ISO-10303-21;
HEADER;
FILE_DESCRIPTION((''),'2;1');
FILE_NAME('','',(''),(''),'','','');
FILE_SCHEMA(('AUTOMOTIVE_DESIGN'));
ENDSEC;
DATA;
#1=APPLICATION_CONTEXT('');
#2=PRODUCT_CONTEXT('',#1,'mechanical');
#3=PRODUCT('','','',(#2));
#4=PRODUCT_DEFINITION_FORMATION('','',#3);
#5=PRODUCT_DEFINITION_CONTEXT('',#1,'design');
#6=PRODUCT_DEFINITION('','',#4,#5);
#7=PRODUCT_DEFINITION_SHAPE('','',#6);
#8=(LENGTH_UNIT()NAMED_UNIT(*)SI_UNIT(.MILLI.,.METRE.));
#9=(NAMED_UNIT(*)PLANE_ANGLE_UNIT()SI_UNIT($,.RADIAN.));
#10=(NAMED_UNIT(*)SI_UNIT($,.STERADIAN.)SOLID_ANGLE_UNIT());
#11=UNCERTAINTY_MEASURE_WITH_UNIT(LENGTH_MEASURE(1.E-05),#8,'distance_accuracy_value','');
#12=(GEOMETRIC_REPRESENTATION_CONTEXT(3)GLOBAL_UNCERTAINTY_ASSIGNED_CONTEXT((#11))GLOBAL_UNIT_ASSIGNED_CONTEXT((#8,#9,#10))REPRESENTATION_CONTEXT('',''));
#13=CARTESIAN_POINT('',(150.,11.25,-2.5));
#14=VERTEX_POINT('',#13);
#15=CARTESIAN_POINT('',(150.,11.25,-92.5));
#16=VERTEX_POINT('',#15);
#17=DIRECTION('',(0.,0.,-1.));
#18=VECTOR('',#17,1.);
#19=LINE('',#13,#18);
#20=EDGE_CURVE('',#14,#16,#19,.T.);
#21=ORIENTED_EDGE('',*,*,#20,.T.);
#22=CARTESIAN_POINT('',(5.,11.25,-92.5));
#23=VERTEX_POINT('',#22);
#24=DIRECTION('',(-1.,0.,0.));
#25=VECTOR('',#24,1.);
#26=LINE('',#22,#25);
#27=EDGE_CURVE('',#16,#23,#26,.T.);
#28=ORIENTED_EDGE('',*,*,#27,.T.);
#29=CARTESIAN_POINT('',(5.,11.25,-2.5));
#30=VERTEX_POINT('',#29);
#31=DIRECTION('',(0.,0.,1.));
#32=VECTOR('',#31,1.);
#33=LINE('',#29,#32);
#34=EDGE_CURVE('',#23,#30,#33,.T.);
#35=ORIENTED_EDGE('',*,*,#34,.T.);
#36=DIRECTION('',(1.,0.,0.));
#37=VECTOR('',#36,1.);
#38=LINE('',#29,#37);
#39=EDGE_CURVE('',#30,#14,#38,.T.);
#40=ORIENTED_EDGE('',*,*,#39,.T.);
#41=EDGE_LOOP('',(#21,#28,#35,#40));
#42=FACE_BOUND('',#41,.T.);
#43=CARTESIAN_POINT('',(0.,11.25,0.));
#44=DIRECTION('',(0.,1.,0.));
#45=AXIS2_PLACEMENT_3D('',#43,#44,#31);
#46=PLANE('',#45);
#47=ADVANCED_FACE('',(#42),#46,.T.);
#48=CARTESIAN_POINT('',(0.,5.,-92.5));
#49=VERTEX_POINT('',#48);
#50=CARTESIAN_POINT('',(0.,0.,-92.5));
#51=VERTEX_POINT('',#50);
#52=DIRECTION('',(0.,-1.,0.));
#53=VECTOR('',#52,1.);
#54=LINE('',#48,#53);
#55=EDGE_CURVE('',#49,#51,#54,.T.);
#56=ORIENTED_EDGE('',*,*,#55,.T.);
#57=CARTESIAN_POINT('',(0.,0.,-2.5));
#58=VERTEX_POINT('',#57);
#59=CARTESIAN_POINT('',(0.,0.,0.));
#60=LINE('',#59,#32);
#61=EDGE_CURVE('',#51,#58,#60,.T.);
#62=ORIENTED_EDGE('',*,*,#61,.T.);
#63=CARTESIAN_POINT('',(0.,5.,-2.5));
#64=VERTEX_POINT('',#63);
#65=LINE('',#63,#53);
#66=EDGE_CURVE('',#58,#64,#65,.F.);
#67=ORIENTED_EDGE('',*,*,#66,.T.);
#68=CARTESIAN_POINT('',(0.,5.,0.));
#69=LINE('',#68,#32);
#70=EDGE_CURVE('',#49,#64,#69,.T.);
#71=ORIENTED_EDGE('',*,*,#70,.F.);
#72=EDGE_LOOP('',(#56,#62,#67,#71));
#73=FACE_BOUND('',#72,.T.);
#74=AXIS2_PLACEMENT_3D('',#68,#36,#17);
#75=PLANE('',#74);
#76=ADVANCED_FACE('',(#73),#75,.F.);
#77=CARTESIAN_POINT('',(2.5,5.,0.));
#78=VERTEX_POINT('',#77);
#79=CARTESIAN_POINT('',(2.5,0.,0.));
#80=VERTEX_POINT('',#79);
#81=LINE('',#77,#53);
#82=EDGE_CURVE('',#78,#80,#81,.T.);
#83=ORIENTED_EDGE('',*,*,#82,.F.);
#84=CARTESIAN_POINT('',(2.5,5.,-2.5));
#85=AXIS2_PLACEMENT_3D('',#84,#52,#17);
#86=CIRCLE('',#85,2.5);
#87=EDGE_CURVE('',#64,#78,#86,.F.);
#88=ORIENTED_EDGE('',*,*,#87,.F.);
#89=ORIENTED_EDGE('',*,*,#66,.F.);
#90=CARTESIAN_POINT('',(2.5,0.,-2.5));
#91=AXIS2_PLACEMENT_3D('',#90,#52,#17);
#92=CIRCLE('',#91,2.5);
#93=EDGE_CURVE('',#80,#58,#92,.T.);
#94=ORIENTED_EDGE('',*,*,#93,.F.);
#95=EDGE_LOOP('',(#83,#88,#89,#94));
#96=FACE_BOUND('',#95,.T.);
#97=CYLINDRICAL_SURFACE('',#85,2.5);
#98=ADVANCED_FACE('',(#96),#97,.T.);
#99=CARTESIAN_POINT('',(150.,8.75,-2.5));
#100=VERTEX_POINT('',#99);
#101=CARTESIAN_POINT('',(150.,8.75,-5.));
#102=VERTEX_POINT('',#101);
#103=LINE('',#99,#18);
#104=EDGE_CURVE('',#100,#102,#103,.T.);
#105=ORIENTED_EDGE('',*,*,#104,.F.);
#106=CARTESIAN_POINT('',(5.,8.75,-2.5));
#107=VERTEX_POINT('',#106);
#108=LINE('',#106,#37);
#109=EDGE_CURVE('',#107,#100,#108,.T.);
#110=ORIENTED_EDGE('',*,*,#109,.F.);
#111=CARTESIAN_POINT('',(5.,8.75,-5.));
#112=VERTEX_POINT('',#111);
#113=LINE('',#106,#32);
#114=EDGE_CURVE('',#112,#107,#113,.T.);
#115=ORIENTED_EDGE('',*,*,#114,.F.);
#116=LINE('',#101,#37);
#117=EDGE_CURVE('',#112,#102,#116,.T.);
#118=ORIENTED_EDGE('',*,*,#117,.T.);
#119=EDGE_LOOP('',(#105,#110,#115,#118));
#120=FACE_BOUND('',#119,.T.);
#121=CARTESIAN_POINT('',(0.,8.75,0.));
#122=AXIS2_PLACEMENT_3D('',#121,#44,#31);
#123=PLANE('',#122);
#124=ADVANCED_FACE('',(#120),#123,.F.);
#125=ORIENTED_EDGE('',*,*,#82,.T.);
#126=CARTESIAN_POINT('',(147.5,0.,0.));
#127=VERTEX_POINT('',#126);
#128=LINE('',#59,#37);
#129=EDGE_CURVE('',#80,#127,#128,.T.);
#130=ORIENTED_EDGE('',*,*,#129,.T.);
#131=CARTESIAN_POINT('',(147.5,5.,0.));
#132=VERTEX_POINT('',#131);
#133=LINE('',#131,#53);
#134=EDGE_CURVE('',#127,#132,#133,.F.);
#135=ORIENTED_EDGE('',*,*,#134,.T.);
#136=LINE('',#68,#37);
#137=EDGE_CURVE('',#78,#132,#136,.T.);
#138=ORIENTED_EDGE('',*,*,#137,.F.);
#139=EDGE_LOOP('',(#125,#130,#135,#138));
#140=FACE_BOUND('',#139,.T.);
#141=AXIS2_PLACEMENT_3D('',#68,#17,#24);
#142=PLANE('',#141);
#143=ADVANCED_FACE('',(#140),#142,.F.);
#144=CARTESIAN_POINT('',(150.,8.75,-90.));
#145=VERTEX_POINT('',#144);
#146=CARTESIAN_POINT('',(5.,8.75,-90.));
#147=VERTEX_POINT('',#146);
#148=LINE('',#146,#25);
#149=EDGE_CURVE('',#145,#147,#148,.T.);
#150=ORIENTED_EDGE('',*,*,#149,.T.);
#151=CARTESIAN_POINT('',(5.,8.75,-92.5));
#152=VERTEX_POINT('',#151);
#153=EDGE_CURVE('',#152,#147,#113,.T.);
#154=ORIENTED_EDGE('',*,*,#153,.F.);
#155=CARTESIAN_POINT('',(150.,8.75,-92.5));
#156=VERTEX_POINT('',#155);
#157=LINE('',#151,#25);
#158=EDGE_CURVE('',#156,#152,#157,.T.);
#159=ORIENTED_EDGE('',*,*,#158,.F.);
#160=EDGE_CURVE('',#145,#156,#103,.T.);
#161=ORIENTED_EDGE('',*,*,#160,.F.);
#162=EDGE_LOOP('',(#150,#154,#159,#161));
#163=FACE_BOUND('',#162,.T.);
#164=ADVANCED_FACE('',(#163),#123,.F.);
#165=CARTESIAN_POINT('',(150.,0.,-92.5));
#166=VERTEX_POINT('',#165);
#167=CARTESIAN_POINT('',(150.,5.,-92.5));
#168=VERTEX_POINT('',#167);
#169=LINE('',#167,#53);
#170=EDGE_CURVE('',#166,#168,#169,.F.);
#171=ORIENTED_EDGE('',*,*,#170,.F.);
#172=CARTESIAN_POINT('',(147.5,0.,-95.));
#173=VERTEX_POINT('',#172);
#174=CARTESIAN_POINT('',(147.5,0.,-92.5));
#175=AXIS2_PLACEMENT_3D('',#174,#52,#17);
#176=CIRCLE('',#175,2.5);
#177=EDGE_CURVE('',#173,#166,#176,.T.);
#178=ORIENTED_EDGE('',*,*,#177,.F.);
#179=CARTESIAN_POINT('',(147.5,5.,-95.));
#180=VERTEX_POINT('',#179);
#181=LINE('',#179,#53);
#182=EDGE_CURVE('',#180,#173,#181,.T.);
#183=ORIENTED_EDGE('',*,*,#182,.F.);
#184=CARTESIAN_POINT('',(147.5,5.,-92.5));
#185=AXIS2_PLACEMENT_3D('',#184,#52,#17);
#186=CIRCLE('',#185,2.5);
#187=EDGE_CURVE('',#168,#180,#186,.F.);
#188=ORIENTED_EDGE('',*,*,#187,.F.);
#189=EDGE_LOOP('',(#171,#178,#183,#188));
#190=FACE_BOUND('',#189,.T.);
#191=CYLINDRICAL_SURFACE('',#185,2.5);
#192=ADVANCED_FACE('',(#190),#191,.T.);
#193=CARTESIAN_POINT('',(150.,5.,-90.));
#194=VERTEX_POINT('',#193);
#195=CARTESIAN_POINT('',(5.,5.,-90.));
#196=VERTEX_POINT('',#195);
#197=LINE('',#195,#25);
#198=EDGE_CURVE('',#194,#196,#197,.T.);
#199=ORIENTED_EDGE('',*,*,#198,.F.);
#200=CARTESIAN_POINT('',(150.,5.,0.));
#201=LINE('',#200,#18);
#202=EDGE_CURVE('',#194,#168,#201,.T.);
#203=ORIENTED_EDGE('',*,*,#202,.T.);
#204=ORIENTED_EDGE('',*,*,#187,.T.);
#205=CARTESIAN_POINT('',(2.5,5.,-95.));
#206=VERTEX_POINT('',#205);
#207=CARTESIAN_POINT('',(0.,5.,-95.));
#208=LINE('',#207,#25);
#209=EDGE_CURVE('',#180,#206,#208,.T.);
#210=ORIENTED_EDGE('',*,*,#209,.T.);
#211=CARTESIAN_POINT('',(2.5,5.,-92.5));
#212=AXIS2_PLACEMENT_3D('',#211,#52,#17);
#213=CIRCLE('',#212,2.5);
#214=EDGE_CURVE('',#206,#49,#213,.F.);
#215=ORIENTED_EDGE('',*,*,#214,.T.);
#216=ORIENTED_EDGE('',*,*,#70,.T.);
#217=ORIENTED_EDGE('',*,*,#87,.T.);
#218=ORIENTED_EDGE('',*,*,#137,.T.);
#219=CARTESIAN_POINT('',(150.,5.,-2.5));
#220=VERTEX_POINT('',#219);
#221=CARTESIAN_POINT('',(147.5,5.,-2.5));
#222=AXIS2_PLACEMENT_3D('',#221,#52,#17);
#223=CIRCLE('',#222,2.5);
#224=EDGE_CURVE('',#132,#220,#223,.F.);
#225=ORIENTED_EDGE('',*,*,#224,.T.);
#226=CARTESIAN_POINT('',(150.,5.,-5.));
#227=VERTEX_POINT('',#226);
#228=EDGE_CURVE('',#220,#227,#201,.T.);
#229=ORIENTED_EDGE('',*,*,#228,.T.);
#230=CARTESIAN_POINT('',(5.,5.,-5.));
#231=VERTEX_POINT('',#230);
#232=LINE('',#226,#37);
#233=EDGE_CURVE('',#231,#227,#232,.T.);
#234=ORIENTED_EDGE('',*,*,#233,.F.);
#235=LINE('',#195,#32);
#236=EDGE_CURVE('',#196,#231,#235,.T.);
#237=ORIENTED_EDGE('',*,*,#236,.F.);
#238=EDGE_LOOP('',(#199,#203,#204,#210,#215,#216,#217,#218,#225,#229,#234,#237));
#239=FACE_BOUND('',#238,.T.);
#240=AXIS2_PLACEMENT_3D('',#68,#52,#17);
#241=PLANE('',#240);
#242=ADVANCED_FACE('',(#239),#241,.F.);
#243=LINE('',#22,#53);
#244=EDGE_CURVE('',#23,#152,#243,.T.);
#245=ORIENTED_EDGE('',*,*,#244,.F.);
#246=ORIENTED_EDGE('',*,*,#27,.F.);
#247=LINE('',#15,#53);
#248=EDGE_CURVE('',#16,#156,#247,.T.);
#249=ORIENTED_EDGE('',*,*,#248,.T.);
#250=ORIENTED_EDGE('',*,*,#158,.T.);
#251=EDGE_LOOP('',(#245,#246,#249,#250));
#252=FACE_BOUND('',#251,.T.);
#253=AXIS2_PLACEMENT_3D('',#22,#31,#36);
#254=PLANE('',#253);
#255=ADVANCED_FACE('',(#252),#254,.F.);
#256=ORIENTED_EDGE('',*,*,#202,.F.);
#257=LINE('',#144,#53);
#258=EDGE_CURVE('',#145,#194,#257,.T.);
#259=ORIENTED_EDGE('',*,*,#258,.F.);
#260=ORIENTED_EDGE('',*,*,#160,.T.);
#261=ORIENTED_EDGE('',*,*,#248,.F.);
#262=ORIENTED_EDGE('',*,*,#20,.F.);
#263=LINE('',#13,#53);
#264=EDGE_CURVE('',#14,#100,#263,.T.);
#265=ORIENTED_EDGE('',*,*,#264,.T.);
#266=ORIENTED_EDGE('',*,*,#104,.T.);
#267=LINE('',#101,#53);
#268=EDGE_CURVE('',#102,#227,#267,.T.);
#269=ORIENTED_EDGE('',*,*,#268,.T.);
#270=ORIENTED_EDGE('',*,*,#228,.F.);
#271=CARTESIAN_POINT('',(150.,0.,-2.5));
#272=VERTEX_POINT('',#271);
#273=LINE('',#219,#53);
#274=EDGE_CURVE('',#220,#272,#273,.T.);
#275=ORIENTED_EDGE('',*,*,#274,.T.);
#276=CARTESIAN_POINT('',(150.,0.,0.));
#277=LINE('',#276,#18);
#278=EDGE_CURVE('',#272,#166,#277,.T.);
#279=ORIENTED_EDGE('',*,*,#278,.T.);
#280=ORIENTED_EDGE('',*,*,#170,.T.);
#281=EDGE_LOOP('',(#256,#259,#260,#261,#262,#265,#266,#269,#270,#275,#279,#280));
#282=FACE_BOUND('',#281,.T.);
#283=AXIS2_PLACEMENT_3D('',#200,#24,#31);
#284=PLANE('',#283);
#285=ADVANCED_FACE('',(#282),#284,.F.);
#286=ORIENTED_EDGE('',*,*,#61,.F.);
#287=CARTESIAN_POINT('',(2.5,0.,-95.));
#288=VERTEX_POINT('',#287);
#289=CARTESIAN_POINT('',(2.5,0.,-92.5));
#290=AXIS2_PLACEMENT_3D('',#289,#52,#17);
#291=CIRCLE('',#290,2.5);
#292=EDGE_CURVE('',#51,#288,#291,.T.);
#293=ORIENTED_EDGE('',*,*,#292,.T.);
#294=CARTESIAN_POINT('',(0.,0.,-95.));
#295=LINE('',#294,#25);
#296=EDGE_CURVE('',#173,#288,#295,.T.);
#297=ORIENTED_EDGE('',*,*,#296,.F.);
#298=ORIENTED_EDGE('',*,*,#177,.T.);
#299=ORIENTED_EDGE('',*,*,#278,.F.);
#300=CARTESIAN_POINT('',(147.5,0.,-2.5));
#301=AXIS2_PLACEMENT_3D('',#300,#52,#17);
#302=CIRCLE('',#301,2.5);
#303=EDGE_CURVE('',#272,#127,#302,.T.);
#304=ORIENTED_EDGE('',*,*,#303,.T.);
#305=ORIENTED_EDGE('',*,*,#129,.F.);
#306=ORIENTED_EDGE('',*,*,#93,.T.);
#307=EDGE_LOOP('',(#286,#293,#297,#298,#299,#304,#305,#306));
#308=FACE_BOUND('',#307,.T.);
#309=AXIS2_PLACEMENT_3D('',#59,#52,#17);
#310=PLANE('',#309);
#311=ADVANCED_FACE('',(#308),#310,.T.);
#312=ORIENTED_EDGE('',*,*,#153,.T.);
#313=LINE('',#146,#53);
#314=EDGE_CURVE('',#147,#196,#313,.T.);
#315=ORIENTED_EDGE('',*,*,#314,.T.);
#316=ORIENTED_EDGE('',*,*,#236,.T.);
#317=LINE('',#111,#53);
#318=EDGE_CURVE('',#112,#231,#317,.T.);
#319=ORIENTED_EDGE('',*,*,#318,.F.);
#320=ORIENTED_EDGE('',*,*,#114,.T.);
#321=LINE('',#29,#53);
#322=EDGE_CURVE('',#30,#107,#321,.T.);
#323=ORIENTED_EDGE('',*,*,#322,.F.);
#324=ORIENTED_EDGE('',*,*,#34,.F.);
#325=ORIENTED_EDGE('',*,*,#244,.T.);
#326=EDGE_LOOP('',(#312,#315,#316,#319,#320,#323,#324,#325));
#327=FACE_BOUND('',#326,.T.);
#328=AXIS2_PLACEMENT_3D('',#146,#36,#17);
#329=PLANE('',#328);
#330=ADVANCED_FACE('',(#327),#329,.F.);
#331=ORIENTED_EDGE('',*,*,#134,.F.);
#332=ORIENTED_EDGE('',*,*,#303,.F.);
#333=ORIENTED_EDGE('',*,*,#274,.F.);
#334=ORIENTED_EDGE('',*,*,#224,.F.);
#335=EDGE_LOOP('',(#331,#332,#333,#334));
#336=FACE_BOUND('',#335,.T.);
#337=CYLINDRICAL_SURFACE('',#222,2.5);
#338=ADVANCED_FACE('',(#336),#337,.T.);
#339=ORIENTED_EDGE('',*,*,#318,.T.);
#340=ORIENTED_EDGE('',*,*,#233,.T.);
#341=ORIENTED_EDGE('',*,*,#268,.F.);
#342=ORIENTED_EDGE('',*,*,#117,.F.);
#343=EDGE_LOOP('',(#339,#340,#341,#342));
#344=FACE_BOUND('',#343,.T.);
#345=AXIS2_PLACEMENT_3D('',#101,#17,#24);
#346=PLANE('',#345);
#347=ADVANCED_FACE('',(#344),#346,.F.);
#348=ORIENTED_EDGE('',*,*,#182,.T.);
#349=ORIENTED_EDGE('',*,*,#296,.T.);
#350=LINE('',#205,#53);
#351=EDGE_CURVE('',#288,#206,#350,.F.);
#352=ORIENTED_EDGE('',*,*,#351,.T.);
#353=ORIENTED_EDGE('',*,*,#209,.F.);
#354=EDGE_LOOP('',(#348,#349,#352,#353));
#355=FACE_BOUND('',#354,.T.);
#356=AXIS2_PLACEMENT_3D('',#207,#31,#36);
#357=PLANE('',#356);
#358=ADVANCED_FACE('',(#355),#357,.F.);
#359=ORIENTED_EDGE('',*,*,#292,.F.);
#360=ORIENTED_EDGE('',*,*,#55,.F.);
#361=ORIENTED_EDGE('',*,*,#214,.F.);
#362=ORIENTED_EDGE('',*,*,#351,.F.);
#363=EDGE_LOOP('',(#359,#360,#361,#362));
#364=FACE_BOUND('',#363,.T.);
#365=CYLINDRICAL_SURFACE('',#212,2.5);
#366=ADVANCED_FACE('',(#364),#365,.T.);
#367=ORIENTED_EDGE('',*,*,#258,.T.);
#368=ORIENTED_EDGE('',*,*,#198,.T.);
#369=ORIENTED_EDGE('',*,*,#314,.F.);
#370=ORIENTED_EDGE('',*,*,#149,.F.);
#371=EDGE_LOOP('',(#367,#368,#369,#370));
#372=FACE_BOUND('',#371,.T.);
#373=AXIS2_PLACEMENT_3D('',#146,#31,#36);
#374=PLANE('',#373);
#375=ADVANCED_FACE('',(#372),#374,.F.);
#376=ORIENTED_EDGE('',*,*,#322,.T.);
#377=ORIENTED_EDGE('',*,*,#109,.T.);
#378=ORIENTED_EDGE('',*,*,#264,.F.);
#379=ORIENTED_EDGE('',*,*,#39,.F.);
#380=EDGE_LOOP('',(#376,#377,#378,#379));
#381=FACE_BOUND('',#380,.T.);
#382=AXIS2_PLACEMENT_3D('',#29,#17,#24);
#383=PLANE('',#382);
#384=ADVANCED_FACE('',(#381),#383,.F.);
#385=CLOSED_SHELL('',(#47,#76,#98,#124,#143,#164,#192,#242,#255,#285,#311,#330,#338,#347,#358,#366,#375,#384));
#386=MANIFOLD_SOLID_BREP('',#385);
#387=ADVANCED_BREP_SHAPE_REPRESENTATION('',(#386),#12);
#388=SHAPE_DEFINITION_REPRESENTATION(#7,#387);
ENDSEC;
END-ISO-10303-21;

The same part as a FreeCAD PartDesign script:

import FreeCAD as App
import Part
import Sketcher
from FreeCAD import Vector
Q = App.Units.Quantity


def edges_at(feature, points):
    """Names of the edges that pass closest to the given points."""
    edges = feature.Shape.Edges
    near = lambda p: min(range(len(edges)), key=lambda i: edges[i].distToShape(Part.Vertex(*p))[0])
    return sorted({f"Edge{near(p) + 1}" for p in points})

doc = App.newDocument("Part")
params = doc.addObject("Spreadsheet::Sheet", "Params")
for row, (alias, value) in enumerate([
    ("sketch1_width", "150 mm"),
    ("sketch1_height", "95 mm"),
    ("pad1_length", "5 mm"),
    ("sketch2_width", "145 mm"),
    ("sketch2_height", "85 mm"),
    ("pad2_length", "3.75 mm"),
    ("sketch3_width", "145 mm"),
    ("sketch3_height", "90 mm"),
    ("pad3_length", "2.5 mm"),
    ("fillet_radius", "2.5 mm"),
], start=1):
    params.set(f"A{row}", alias)
    params.set(f"B{row}", "=" + value)
    params.setAlias(f"B{row}", alias)

body = doc.addObject("PartDesign::Body", "Body")

sketch1 = body.newObject("Sketcher::SketchObject", "Sketch")
sketch1.AttachmentSupport = (doc.getObject("XZ_Plane"), [""])
sketch1.MapMode = "FlatFace"
sketch1.addGeometry([
    Part.LineSegment(Vector(0, -95, 0), Vector(0, 0, 0)),
    Part.LineSegment(Vector(0, 0, 0), Vector(150, 0, 0)),
    Part.LineSegment(Vector(150, 0, 0), Vector(150, -95, 0)),
    Part.LineSegment(Vector(150, -95, 0), Vector(0, -95, 0)),
], False)
sketch1.addConstraint([
    Sketcher.Constraint("Coincident", 0, 2, 1, 1),
    Sketcher.Constraint("Coincident", 1, 2, 2, 1),
    Sketcher.Constraint("Coincident", 2, 2, 3, 1),
    Sketcher.Constraint("Coincident", 3, 2, 0, 1),
    Sketcher.Constraint("Vertical", 0),
    Sketcher.Constraint("Horizontal", 1),
    Sketcher.Constraint("Vertical", 2),
    Sketcher.Constraint("Horizontal", 3),
    Sketcher.Constraint("Coincident", 0, 2, -1, 1),
    Sketcher.Constraint("DistanceX", 1, 1, 1, 2, Q("150 mm")),
    Sketcher.Constraint("DistanceY", 0, 1, 0, 2, Q("95 mm")),
])
sketch1.setExpression("Constraints[9]", "Params.sketch1_width")
sketch1.setExpression("Constraints[10]", "Params.sketch1_height")
pad1 = body.newObject("PartDesign::Pad", "Pad")
pad1.Profile = sketch1
pad1.setExpression("Length", "Params.pad1_length")
pad1.Reversed = True

sketch2 = body.newObject("Sketcher::SketchObject", "Sketch001")
sketch2.AttachmentSupport = (doc.getObject("XZ_Plane"), [""])
sketch2.MapMode = "FlatFace"
sketch2.AttachmentOffset = App.Placement(Vector(0, 0, -5), App.Rotation())
sketch2.addGeometry([
    Part.LineSegment(Vector(5, -90, 0), Vector(5, -5, 0)),
    Part.LineSegment(Vector(5, -5, 0), Vector(150, -5, 0)),
    Part.LineSegment(Vector(150, -5, 0), Vector(150, -90, 0)),
    Part.LineSegment(Vector(150, -90, 0), Vector(5, -90, 0)),
], False)
sketch2.addConstraint([
    Sketcher.Constraint("Coincident", 0, 2, 1, 1),
    Sketcher.Constraint("Coincident", 1, 2, 2, 1),
    Sketcher.Constraint("Coincident", 2, 2, 3, 1),
    Sketcher.Constraint("Coincident", 3, 2, 0, 1),
    Sketcher.Constraint("Vertical", 0),
    Sketcher.Constraint("Horizontal", 1),
    Sketcher.Constraint("Vertical", 2),
    Sketcher.Constraint("Horizontal", 3),
    Sketcher.Constraint("DistanceX", 1, 1, 1, 2, Q("145 mm")),
    Sketcher.Constraint("DistanceY", 0, 1, 0, 2, Q("85 mm")),
    Sketcher.Constraint("DistanceX", -1, 1, 0, 2, Q("5 mm")),
    Sketcher.Constraint("DistanceY", 0, 2, -1, 1, Q("5 mm")),
])
sketch2.setExpression("Constraints[8]", "Params.sketch2_width")
sketch2.setExpression("Constraints[9]", "Params.sketch2_height")
pad2 = body.newObject("PartDesign::Pad", "Pad001")
pad2.Profile = sketch2
pad2.setExpression("Length", "Params.pad2_length")
pad2.Reversed = True

sketch3 = body.newObject("Sketcher::SketchObject", "Sketch002")
sketch3.AttachmentSupport = (doc.getObject("XZ_Plane"), [""])
sketch3.MapMode = "FlatFace"
sketch3.AttachmentOffset = App.Placement(Vector(0, 0, -8.75), App.Rotation())
sketch3.addGeometry([
    Part.LineSegment(Vector(5, -92.5, 0), Vector(5, -2.5, 0)),
    Part.LineSegment(Vector(5, -2.5, 0), Vector(150, -2.5, 0)),
    Part.LineSegment(Vector(150, -2.5, 0), Vector(150, -92.5, 0)),
    Part.LineSegment(Vector(150, -92.5, 0), Vector(5, -92.5, 0)),
], False)
sketch3.addConstraint([
    Sketcher.Constraint("Coincident", 0, 2, 1, 1),
    Sketcher.Constraint("Coincident", 1, 2, 2, 1),
    Sketcher.Constraint("Coincident", 2, 2, 3, 1),
    Sketcher.Constraint("Coincident", 3, 2, 0, 1),
    Sketcher.Constraint("Vertical", 0),
    Sketcher.Constraint("Horizontal", 1),
    Sketcher.Constraint("Vertical", 2),
    Sketcher.Constraint("Horizontal", 3),
    Sketcher.Constraint("DistanceX", 1, 1, 1, 2, Q("145 mm")),
    Sketcher.Constraint("DistanceY", 0, 1, 0, 2, Q("90 mm")),
    Sketcher.Constraint("DistanceX", -1, 1, 0, 2, Q("5 mm")),
    Sketcher.Constraint("DistanceY", 0, 2, -1, 1, Q("2.5 mm")),
])
sketch3.setExpression("Constraints[8]", "Params.sketch3_width")
sketch3.setExpression("Constraints[9]", "Params.sketch3_height")
pad3 = body.newObject("PartDesign::Pad", "Pad002")
pad3.Profile = sketch3
pad3.setExpression("Length", "Params.pad3_length")
pad3.Reversed = True
doc.recompute()

fillet = body.newObject("PartDesign::Fillet", "Fillet")
fillet.Base = (pad3, edges_at(pad3, [
    (0, 2.5, -95),
    (150, 2.5, -95),
    (150, 2.5, 0),
    (0, 2.5, 0),
]))
fillet.setExpression("Radius", "Params.fillet_radius")

doc.recompute()
